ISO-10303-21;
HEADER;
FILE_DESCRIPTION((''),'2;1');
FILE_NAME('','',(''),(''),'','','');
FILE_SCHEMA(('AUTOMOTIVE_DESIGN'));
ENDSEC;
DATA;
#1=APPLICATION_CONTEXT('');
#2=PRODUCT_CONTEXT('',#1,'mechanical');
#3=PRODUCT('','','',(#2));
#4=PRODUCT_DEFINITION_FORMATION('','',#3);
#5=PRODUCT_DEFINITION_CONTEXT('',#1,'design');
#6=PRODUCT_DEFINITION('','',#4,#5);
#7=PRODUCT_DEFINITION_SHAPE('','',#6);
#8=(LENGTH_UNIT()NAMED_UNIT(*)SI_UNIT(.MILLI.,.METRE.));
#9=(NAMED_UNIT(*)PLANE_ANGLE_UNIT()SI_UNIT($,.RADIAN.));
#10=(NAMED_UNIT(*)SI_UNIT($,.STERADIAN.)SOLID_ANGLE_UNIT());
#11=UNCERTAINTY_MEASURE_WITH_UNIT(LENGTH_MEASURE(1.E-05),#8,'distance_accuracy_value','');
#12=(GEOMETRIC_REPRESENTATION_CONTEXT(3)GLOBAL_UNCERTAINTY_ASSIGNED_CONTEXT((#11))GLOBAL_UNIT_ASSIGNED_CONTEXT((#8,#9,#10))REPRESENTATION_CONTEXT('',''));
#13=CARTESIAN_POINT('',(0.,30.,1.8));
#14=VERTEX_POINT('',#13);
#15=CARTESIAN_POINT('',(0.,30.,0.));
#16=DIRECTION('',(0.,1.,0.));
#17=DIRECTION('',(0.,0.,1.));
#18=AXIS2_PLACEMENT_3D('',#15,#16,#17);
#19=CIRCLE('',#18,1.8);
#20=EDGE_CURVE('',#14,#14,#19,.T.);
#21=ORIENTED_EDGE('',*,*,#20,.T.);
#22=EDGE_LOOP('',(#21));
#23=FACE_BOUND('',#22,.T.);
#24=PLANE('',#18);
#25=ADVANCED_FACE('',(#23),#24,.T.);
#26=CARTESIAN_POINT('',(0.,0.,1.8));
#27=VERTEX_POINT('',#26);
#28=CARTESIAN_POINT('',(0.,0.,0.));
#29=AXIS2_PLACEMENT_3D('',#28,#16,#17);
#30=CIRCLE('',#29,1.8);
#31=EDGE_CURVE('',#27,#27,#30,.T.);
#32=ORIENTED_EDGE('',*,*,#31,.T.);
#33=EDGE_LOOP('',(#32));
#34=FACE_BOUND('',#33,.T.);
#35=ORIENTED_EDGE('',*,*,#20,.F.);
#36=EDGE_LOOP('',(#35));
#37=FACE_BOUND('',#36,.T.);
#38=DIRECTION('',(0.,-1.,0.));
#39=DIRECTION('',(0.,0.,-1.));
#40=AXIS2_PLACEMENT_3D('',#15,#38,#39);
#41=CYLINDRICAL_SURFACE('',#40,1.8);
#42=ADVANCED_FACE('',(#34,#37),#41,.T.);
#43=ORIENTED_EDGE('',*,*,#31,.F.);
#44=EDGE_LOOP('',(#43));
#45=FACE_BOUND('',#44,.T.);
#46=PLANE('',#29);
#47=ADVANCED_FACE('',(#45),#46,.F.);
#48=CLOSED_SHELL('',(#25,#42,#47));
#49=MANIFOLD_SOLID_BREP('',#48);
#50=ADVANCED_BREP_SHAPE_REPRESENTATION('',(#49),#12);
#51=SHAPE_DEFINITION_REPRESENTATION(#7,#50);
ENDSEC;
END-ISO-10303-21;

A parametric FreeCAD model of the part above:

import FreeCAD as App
import Part
import Sketcher

V = App.Vector
Q = App.Units.Quantity

doc = App.newDocument("Part")
params = doc.addObject("Spreadsheet::Sheet", "Params")
for row, (alias, value) in enumerate([
    ("sketch1_diameter", "3.6 mm"),
    ("pad1_length", "30 mm"),
], start=1):
    params.set(f"A{row}", alias)
    params.set(f"B{row}", "=" + value)
    params.setAlias(f"B{row}", alias)

body = doc.addObject("PartDesign::Body", "Body")

# Sketch on XZ plane
sketch1 = doc.addObject("Sketcher::SketchObject", "Sketch")
body.addObject(sketch1)
sketch1.AttachmentSupport = (doc.XZ_Plane, [""])
sketch1.MapMode = "FlatFace"
sketch1.addGeometry(Part.Circle(V(0, 0, 0), V(0, 0, 1), 1.8), False)
sketch1.addConstraint([
    Sketcher.Constraint("Coincident", 0, 3, -1, 1),
    Sketcher.Constraint("Diameter", 0, Q("3.6 mm")),
])
sketch1.setExpression("Constraints[1]", "Params.sketch1_diameter")
pad1 = doc.addObject("PartDesign::Pad", "Pad")
body.addObject(pad1)
pad1.Profile = sketch1
pad1.setExpression("Length", "Params.pad1_length")
pad1.Reversed = True

doc.recompute()
